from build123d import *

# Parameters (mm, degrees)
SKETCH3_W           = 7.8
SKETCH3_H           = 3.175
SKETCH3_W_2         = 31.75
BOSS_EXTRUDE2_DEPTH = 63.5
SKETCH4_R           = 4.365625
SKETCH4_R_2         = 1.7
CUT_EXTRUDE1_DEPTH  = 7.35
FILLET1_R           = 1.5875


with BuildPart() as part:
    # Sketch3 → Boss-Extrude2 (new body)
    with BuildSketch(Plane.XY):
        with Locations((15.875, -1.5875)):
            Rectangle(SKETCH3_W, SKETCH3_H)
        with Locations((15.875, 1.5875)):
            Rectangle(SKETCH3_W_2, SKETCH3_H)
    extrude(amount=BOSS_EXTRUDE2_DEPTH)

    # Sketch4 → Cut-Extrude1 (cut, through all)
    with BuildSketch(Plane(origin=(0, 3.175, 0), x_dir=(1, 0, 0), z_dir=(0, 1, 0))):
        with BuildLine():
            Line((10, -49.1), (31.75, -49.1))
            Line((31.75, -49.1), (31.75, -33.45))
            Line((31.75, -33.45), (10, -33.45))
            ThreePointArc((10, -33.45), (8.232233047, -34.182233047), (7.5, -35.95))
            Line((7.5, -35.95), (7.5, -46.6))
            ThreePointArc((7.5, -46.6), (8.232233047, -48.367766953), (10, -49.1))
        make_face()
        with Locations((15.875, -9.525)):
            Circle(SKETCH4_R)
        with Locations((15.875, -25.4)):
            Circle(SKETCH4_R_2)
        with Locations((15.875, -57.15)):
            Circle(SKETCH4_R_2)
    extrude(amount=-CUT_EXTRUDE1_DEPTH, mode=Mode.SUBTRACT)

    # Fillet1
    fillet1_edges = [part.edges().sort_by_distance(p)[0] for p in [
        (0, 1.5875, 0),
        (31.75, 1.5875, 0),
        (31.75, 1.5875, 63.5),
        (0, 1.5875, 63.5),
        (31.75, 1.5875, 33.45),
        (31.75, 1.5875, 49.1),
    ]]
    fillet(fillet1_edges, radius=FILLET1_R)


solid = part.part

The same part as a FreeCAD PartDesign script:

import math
import FreeCAD as App
import Part
import Sketcher
from FreeCAD import Vector
Q = App.Units.Quantity


def edges_at(feature, points):
    """Names of the edges that pass closest to the given points."""
    edges = feature.Shape.Edges
    near = lambda p: min(range(len(edges)), key=lambda i: edges[i].distToShape(Part.Vertex(*p))[0])
    return sorted({f"Edge{near(p) + 1}" for p in points})


def add_polygon(sketch, points):
    """Adds a closed chain of lines whose ends are joined by coincident constraints."""
    first, n = sketch.GeometryCount, len(points)
    for a, b in zip(points, points[1:] + points[:1]):
        sketch.addGeometry(Part.LineSegment(App.Vector(*a, 0), App.Vector(*b, 0)), False)
    for i in range(n):
        sketch.addConstraint(Sketcher.Constraint("Coincident", first + i, 2, first + (i + 1) % n, 1))

doc = App.newDocument("Part")
body = doc.addObject("PartDesign::Body", "Body")

# Sketch on XY plane
sketch1 = body.newObject("Sketcher::SketchObject", "Sketch")
sketch1.AttachmentSupport = (doc.getObject("XY_Plane"), [""])
sketch1.MapMode = "FlatFace"
add_polygon(sketch1, [(12, 0), (12, -3.2), (19.8, -3.2), (19.8, 0), (31.8, 0), (31.8, 3.2), (0, 3.2), (0, 0)])  # lines 0-7
sketch1.addConstraint(Sketcher.Constraint("Vertical", 0))
sketch1.addConstraint(Sketcher.Constraint("Horizontal", 1))
sketch1.addConstraint(Sketcher.Constraint("Vertical", 2))
sketch1.addConstraint(Sketcher.Constraint("Horizontal", 3))
sketch1.addConstraint(Sketcher.Constraint("Vertical", 4))
sketch1.addConstraint(Sketcher.Constraint("Horizontal", 5))
sketch1.addConstraint(Sketcher.Constraint("Vertical", 6))
sketch1.addConstraint(Sketcher.Constraint("Horizontal", 7))
sketch1.addConstraint(Sketcher.Constraint("Coincident", 6, 2, -1, 1))
sketch1.addConstraint(Sketcher.Constraint("PointOnObject", 2, 2, -1))
sketch1.addConstraint(Sketcher.Constraint("Equal", 3, 7))
sketch1.addConstraint(Sketcher.Constraint("Equal", 2, 4))
sketch1.addConstraint(Sketcher.Constraint("DistanceX", 5, 2, 5, 1, Q("1.25 in")))
sketch1.addConstraint(Sketcher.Constraint("DistanceY", 0, 2, 0, 1, Q("0.125 in")))
sketch1.addConstraint(Sketcher.Constraint("DistanceX", 1, 1, 1, 2, Q("7.8 mm")))
pad1 = body.newObject("PartDesign::Pad", "Pad")
pad1.Profile = sketch1
pad1.Length = Q("2.5 in")

# Sketch on XZ plane
sketch2 = body.newObject("Sketcher::SketchObject", "Sketch001")
sketch2.AttachmentSupport = (doc.getObject("XZ_Plane"), [""])
sketch2.MapMode = "FlatFace"
sketch2.AttachmentOffset = App.Placement(Vector(0, 0, -0.125 * 25.4), App.Rotation())
sketch2.addGeometry(Part.LineSegment(Vector(10, 49.1, 0), Vector(31.8, 49.1, 0)), False)
sketch2.addGeometry(Part.LineSegment(Vector(31.8, 49.1, 0), Vector(31.8, 33.5, 0)), False)
sketch2.addGeometry(Part.LineSegment(Vector(31.8, 33.5, 0), Vector(10, 33.5, 0)), False)
sketch2.addGeometry(Part.ArcOfCircle(Part.Circle(Vector(10, 36, 0), Vector(0, 0, 1), 2.5), math.radians(180), math.radians(270)), False)
sketch2.addGeometry(Part.LineSegment(Vector(7.5, 36, 0), Vector(7.5, 46.6, 0)), False)
sketch2.addGeometry(Part.ArcOfCircle(Part.Circle(Vector(10, 46.6, 0), Vector(0, 0, 1), 2.5), math.radians(90), math.radians(180)), False)
sketch2.addGeometry(Part.Circle(Vector(15.9, 9.5, 0), Vector(0, 0, 1), 4.4), False)
sketch2.addGeometry(Part.Circle(Vector(15.9, 25.4, 0), Vector(0, 0, 1), 1.7), False)
sketch2.addGeometry(Part.Circle(Vector(15.9, 57.1, 0), Vector(0, 0, 1), 1.7), False)
sketch2.addConstraint(Sketcher.Constraint("Coincident", 0, 2, 1, 1))
sketch2.addConstraint(Sketcher.Constraint("Coincident", 1, 2, 2, 1))
sketch2.addConstraint(Sketcher.Constraint("Tangent", 2, 2, 3, 2))
sketch2.addConstraint(Sketcher.Constraint("Tangent", 3, 1, 4, 1))
sketch2.addConstraint(Sketcher.Constraint("Tangent", 4, 2, 5, 2))
sketch2.addConstraint(Sketcher.Constraint("Tangent", 5, 1, 0, 1))
sketch2.addConstraint(Sketcher.Constraint("Horizontal", 0))
sketch2.addConstraint(Sketcher.Constraint("Vertical", 1))
sketch2.addConstraint(Sketcher.Constraint("Horizontal", 2))
sketch2.addConstraint(Sketcher.Constraint("Vertical", 4))
sketch2.addConstraint(Sketcher.Constraint("Equal", 3, 5))
sketch2.addConstraint(Sketcher.Constraint("Equal", 7, 8))
sketch2.addConstraint(Sketcher.Constraint("Vertical", 6, 3, 7, 3))
sketch2.addConstraint(Sketcher.Constraint("Vertical", 7, 3, 8, 3))
sketch2.addConstraint(Sketcher.Constraint("Diameter", 6, Q("0.34375 in")))
sketch2.addConstraint(Sketcher.Constraint("DistanceY", -1, 1, 7, 3, Q("1 in")))
sketch2.addConstraint(Sketcher.Constraint("Diameter", 7, Q("3.4 mm")))
sketch2.addConstraint(Sketcher.Constraint("DistanceY", -1, 1, 8, 3, Q("2.25 in")))
sketch2.addConstraint(Sketcher.Constraint("DistanceX", -1, 1, 0, 2, Q("1.25 in")))
sketch2.addConstraint(Sketcher.Constraint("Radius", 3, Q("2.5 mm")))
sketch2.addConstraint(Sketcher.Constraint("DistanceX", -1, 1, 6, 3, Q("0.625 in")))
sketch2.addConstraint(Sketcher.Constraint("DistanceY", -1, 1, 6, 3, Q("0.375 in")))
sketch2.addConstraint(Sketcher.Constraint("DistanceX", 0, 1, 0, 2, Q("21.75 mm")))
sketch2.addConstraint(Sketcher.Constraint("DistanceY", 1, 2, 1, 1, Q("15.65 mm")))
sketch2.addConstraint(Sketcher.Constraint("DistanceY", -1, 1, 3, 3, Q("35.95 mm")))
pocket1 = body.newObject("PartDesign::Pocket", "Pocket")
pocket1.Profile = sketch2
pocket1.Type = "ThroughAll"
pocket1.Reversed = True
doc.recompute()

fillet = body.newObject("PartDesign::Fillet", "Fillet")
fillet.Base = (pocket1, edges_at(pocket1, [
    (0, 1.587, 0),
    (31.75, 1.587, 0),
    (31.75, 1.587, 63.5),
    (0, 1.587, 63.5),
    (31.75, 1.587, 33.45),
    (31.75, 1.587, 49.1),
]))
fillet.Radius = Q("0.0625 in")

doc.recompute()
